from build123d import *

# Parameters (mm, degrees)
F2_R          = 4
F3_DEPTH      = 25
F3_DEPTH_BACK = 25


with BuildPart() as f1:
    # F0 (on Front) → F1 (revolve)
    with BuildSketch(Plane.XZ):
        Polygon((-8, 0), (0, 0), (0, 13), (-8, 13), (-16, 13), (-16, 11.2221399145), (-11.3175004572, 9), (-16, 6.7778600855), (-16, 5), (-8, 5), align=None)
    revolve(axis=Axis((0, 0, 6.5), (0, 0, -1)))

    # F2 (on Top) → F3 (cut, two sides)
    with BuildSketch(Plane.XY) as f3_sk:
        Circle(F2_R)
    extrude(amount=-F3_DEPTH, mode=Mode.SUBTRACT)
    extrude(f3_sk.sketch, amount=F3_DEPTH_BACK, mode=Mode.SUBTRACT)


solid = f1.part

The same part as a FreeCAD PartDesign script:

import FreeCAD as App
import Part
import Sketcher
Q = App.Units.Quantity


def add_polygon(sketch, points):
    """Adds a closed chain of lines whose ends are joined by coincident constraints."""
    first, n = sketch.GeometryCount, len(points)
    for a, b in zip(points, points[1:] + points[:1]):
        sketch.addGeometry(Part.LineSegment(App.Vector(*a, 0), App.Vector(*b, 0)), False)
    for i in range(n):
        sketch.addConstraint(Sketcher.Constraint("Coincident", first + i, 2, first + (i + 1) % n, 1))

doc = App.newDocument("Part")
body = doc.addObject("PartDesign::Body", "Body")

# Sketch on XZ plane
sketch1 = body.newObject("Sketcher::SketchObject", "Sketch")
sketch1.AttachmentSupport = (doc.getObject("XZ_Plane"), [""])
sketch1.MapMode = "FlatFace"
add_polygon(sketch1, [(-8, 0), (0, 0), (0, 13), (-16, 13), (-16, 11.22214), (-11.3175, 9), (-16, 6.77786), (-16, 5), (-8, 5)])  # lines 0-8
sketch1.addConstraint([
    Sketcher.Constraint("Horizontal", 0),
    Sketcher.Constraint("Vertical", 1),
    Sketcher.Constraint("Horizontal", 2),
    Sketcher.Constraint("Vertical", 3),
    Sketcher.Constraint("Vertical", 6),
    Sketcher.Constraint("Horizontal", 7),
    Sketcher.Constraint("Vertical", 8),
    Sketcher.Constraint("Coincident", 0, 2, -1, 1),
    Sketcher.Constraint("Vertical", 3, 2, 5, 2),
    Sketcher.Constraint("Equal", 0, 7),
    Sketcher.Constraint("Equal", 3, 6),
    Sketcher.Constraint("Equal", 4, 5),
    Sketcher.Constraint("DistanceX", 0, 1, 0, 2, Q("8 mm")),
    Sketcher.Constraint("DistanceY", 1, 1, 1, 2, Q("13 mm")),
    Sketcher.Constraint("DistanceY", 8, 2, 8, 1, Q("5 mm")),
    Sketcher.Constraint("DistanceY", 3, 2, 3, 1, Q("1.77786 mm")),
    Sketcher.Constraint("DistanceX", 4, 2, -1, 1, Q("11.3175 mm")),
])
revolution = body.newObject("PartDesign::Revolution", "Revolution")
revolution.Profile = sketch1
revolution.ReferenceAxis = (sketch1, ["V_Axis"])
revolution.Angle = 360

# Sketch on XY plane
sketch2 = body.newObject("Sketcher::SketchObject", "Sketch001")
sketch2.AttachmentSupport = (doc.getObject("XY_Plane"), [""])
sketch2.MapMode = "FlatFace"
sketch2.addGeometry(Part.Circle(App.Vector(0, 0, 0), App.Vector(0, 0, 1), 4), False)
sketch2.addConstraint([
    Sketcher.Constraint("Coincident", 0, 3, -1, 1),
    Sketcher.Constraint("Diameter", 0, Q("8 mm")),
])
pocket1 = body.newObject("PartDesign::Pocket", "Pocket")
pocket1.Profile = sketch2
pocket1.Type = "ThroughAll"
pocket1.Midplane = True

doc.recompute()
